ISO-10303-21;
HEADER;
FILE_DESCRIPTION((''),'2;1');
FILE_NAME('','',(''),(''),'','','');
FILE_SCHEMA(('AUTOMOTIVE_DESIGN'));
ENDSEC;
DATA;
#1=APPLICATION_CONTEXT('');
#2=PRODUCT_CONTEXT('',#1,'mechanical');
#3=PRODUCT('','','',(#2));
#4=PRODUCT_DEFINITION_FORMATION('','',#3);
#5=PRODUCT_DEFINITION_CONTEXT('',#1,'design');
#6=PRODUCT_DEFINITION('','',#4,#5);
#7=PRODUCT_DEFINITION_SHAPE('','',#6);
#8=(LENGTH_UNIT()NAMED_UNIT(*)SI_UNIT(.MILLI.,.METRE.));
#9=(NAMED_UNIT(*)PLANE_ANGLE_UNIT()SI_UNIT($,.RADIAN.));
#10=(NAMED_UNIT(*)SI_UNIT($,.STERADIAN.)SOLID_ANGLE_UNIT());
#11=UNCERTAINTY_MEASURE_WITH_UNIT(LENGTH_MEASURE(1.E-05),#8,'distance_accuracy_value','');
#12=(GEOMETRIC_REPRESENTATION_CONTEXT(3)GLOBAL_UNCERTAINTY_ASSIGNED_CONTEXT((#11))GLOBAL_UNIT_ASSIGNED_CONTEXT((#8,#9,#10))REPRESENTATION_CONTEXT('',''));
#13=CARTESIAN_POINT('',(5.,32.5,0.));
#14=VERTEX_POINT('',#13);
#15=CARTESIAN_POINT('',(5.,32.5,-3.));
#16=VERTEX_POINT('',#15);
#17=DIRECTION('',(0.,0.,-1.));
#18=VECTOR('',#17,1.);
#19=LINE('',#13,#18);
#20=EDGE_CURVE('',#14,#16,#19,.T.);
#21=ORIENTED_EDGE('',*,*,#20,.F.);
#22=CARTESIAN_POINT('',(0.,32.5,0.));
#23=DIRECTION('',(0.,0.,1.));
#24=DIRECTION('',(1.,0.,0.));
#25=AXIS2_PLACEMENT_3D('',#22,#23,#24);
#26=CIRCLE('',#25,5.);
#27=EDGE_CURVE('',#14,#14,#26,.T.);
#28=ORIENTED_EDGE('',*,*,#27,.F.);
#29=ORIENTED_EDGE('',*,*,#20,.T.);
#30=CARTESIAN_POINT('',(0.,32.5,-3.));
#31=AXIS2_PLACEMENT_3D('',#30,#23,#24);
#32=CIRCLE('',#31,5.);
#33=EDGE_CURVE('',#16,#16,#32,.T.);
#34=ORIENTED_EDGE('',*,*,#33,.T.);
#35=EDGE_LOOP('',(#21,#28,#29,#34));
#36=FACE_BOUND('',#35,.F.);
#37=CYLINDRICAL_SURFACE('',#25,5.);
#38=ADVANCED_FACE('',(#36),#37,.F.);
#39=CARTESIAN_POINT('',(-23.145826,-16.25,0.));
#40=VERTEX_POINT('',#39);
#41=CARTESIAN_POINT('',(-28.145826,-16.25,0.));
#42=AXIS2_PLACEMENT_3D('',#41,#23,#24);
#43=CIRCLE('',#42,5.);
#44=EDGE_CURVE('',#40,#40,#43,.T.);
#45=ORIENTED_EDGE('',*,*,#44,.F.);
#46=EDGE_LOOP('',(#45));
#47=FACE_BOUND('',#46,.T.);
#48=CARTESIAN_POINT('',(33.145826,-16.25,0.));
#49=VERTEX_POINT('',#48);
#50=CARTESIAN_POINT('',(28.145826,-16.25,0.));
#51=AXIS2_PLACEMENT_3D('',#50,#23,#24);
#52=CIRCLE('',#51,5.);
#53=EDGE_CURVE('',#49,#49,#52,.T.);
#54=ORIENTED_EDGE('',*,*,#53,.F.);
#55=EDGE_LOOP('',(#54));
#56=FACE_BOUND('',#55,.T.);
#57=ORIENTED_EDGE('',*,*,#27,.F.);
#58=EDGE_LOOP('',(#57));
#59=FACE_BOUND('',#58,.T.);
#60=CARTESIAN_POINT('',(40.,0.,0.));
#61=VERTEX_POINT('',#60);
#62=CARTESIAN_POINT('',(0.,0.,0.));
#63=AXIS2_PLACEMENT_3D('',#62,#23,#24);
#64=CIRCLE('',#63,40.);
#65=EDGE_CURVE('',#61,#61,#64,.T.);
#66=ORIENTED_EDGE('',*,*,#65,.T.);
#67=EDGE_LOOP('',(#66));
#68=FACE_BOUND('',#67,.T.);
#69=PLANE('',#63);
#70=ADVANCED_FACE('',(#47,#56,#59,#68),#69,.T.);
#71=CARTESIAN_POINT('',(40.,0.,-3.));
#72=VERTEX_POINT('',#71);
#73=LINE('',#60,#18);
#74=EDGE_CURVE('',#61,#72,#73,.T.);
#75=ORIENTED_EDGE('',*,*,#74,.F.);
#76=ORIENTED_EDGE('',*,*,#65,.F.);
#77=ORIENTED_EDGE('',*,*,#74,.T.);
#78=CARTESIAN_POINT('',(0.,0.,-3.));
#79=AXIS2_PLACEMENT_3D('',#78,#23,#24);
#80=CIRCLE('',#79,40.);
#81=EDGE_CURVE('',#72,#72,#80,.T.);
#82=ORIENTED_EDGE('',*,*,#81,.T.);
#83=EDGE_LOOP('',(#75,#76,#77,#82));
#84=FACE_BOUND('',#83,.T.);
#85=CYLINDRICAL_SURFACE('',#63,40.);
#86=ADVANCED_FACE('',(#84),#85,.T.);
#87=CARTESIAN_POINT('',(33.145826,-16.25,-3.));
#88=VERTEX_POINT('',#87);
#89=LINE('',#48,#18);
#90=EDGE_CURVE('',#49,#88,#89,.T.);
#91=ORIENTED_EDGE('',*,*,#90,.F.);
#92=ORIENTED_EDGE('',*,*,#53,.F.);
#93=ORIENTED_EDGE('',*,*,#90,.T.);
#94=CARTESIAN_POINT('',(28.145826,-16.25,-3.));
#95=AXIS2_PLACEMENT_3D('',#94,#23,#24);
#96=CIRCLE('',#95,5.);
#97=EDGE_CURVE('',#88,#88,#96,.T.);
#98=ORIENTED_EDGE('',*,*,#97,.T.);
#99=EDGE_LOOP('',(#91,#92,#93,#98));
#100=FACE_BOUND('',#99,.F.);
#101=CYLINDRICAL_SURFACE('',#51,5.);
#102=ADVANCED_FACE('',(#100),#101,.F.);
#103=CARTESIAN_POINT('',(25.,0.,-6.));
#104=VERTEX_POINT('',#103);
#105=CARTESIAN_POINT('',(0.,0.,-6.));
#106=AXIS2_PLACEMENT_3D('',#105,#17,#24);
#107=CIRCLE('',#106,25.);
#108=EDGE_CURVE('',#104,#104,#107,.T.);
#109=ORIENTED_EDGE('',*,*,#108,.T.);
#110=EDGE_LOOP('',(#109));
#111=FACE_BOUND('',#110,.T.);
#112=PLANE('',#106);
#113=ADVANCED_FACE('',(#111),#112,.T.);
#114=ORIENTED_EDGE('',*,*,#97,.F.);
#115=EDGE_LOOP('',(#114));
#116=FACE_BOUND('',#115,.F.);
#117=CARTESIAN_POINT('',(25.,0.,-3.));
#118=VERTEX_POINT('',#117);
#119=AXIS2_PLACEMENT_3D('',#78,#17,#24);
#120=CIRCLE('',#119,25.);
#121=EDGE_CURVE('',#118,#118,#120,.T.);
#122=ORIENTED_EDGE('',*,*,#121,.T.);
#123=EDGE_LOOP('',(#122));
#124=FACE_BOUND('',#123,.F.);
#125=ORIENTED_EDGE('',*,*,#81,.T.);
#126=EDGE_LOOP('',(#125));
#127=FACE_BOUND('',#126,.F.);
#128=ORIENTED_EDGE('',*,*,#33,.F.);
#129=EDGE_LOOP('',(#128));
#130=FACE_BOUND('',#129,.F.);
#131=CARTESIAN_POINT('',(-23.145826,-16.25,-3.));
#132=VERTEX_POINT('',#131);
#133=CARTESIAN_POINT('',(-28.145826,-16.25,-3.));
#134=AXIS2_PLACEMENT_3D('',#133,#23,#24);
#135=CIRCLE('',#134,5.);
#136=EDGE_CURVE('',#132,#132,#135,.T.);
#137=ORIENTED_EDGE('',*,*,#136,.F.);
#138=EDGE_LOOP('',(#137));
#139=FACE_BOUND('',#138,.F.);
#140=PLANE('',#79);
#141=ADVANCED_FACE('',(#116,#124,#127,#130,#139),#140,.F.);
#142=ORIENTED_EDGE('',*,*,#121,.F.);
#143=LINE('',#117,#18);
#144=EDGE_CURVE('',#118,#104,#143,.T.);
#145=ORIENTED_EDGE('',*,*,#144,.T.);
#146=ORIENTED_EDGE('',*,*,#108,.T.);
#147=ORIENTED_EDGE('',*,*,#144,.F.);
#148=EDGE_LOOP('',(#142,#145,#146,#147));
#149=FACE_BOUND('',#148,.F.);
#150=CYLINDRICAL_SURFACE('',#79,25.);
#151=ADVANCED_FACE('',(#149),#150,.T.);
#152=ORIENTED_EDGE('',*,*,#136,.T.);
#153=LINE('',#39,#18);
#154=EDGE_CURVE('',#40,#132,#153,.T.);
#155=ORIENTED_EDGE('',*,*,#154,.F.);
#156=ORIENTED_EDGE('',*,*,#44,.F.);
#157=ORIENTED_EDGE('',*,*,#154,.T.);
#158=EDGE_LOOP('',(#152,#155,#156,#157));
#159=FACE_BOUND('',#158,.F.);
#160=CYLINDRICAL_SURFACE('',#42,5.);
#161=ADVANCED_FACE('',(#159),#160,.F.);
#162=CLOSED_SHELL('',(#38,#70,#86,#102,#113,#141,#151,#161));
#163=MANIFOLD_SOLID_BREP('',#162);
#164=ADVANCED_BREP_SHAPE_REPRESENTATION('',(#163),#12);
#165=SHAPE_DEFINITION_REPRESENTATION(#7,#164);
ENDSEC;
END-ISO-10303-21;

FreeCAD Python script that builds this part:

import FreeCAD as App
import Part
import Sketcher

V = App.Vector
Q = App.Units.Quantity

doc = App.newDocument("Part")
body = doc.addObject("PartDesign::Body", "Body")

sketch1 = body.newObject("Sketcher::SketchObject", "Sketch")
sketch1.AttachmentSupport = (doc.getObject("XY_Plane"), [""])
sketch1.MapMode = "FlatFace"
sketch1.addGeometry(Part.Circle(V(0, 0, 0), V(0, 0, 1), 40), False)
sketch1.addConstraint(Sketcher.Constraint("Coincident", 0, 3, -1, 1))
sketch1.addConstraint(Sketcher.Constraint("Diameter", 0, Q("80 mm")))
pad1 = body.newObject("PartDesign::Pad", "Pad")
pad1.Profile = sketch1
pad1.Length = 3
pad1.Reversed = True

sketch2 = body.newObject("Sketcher::SketchObject", "Sketch001")
sketch2.AttachmentSupport = (doc.getObject("XY_Plane"), [""])
sketch2.MapMode = "FlatFace"
sketch2.addGeometry(Part.Circle(V(0, 32, 0), V(0, 0, 1), 5), False)
sketch2.addGeometry(Part.Circle(V(-28, -16, 0), V(0, 0, 1), 5), False)
sketch2.addGeometry(Part.Circle(V(28, -16, 0), V(0, 0, 1), 5), False)
sketch2.addConstraint(Sketcher.Constraint("Equal", 0, 1))
sketch2.addConstraint(Sketcher.Constraint("Equal", 1, 2))
sketch2.addConstraint(Sketcher.Constraint("Symmetric", 1, 3, 2, 3, -2))
sketch2.addConstraint(Sketcher.Constraint("PointOnObject", 0, 3, -2))
sketch2.addConstraint(Sketcher.Constraint("Diameter", 0, Q("10 mm")))
sketch2.addConstraint(Sketcher.Constraint("DistanceY", -1, 1, 0, 3, Q("32.5 mm")))
sketch2.addConstraint(Sketcher.Constraint("DistanceY", 1, 3, -1, 1, Q("16.25 mm")))
sketch2.addConstraint(Sketcher.Constraint("DistanceX", 1, 3, -1, 1, Q("28.145826 mm")))
pocket1 = body.newObject("PartDesign::Pocket", "Pocket")
pocket1.Profile = sketch2
pocket1.Length = 25

sketch3 = body.newObject("Sketcher::SketchObject", "Sketch002")
sketch3.AttachmentSupport = (doc.getObject("XY_Plane"), [""])
sketch3.MapMode = "FlatFace"
sketch3.AttachmentOffset = App.Placement(V(0, 0, -3), App.Rotation())
sketch3.addGeometry(Part.Circle(V(0, 0, 0), V(0, 0, 1), 25), False)
sketch3.addConstraint(Sketcher.Constraint("Coincident", 0, 3, -1, 1))
sketch3.addConstraint(Sketcher.Constraint("Diameter", 0, Q("50 mm")))
pad2 = body.newObject("PartDesign::Pad", "Pad001")
pad2.Profile = sketch3
pad2.Length = 3
pad2.Reversed = True

doc.recompute()
